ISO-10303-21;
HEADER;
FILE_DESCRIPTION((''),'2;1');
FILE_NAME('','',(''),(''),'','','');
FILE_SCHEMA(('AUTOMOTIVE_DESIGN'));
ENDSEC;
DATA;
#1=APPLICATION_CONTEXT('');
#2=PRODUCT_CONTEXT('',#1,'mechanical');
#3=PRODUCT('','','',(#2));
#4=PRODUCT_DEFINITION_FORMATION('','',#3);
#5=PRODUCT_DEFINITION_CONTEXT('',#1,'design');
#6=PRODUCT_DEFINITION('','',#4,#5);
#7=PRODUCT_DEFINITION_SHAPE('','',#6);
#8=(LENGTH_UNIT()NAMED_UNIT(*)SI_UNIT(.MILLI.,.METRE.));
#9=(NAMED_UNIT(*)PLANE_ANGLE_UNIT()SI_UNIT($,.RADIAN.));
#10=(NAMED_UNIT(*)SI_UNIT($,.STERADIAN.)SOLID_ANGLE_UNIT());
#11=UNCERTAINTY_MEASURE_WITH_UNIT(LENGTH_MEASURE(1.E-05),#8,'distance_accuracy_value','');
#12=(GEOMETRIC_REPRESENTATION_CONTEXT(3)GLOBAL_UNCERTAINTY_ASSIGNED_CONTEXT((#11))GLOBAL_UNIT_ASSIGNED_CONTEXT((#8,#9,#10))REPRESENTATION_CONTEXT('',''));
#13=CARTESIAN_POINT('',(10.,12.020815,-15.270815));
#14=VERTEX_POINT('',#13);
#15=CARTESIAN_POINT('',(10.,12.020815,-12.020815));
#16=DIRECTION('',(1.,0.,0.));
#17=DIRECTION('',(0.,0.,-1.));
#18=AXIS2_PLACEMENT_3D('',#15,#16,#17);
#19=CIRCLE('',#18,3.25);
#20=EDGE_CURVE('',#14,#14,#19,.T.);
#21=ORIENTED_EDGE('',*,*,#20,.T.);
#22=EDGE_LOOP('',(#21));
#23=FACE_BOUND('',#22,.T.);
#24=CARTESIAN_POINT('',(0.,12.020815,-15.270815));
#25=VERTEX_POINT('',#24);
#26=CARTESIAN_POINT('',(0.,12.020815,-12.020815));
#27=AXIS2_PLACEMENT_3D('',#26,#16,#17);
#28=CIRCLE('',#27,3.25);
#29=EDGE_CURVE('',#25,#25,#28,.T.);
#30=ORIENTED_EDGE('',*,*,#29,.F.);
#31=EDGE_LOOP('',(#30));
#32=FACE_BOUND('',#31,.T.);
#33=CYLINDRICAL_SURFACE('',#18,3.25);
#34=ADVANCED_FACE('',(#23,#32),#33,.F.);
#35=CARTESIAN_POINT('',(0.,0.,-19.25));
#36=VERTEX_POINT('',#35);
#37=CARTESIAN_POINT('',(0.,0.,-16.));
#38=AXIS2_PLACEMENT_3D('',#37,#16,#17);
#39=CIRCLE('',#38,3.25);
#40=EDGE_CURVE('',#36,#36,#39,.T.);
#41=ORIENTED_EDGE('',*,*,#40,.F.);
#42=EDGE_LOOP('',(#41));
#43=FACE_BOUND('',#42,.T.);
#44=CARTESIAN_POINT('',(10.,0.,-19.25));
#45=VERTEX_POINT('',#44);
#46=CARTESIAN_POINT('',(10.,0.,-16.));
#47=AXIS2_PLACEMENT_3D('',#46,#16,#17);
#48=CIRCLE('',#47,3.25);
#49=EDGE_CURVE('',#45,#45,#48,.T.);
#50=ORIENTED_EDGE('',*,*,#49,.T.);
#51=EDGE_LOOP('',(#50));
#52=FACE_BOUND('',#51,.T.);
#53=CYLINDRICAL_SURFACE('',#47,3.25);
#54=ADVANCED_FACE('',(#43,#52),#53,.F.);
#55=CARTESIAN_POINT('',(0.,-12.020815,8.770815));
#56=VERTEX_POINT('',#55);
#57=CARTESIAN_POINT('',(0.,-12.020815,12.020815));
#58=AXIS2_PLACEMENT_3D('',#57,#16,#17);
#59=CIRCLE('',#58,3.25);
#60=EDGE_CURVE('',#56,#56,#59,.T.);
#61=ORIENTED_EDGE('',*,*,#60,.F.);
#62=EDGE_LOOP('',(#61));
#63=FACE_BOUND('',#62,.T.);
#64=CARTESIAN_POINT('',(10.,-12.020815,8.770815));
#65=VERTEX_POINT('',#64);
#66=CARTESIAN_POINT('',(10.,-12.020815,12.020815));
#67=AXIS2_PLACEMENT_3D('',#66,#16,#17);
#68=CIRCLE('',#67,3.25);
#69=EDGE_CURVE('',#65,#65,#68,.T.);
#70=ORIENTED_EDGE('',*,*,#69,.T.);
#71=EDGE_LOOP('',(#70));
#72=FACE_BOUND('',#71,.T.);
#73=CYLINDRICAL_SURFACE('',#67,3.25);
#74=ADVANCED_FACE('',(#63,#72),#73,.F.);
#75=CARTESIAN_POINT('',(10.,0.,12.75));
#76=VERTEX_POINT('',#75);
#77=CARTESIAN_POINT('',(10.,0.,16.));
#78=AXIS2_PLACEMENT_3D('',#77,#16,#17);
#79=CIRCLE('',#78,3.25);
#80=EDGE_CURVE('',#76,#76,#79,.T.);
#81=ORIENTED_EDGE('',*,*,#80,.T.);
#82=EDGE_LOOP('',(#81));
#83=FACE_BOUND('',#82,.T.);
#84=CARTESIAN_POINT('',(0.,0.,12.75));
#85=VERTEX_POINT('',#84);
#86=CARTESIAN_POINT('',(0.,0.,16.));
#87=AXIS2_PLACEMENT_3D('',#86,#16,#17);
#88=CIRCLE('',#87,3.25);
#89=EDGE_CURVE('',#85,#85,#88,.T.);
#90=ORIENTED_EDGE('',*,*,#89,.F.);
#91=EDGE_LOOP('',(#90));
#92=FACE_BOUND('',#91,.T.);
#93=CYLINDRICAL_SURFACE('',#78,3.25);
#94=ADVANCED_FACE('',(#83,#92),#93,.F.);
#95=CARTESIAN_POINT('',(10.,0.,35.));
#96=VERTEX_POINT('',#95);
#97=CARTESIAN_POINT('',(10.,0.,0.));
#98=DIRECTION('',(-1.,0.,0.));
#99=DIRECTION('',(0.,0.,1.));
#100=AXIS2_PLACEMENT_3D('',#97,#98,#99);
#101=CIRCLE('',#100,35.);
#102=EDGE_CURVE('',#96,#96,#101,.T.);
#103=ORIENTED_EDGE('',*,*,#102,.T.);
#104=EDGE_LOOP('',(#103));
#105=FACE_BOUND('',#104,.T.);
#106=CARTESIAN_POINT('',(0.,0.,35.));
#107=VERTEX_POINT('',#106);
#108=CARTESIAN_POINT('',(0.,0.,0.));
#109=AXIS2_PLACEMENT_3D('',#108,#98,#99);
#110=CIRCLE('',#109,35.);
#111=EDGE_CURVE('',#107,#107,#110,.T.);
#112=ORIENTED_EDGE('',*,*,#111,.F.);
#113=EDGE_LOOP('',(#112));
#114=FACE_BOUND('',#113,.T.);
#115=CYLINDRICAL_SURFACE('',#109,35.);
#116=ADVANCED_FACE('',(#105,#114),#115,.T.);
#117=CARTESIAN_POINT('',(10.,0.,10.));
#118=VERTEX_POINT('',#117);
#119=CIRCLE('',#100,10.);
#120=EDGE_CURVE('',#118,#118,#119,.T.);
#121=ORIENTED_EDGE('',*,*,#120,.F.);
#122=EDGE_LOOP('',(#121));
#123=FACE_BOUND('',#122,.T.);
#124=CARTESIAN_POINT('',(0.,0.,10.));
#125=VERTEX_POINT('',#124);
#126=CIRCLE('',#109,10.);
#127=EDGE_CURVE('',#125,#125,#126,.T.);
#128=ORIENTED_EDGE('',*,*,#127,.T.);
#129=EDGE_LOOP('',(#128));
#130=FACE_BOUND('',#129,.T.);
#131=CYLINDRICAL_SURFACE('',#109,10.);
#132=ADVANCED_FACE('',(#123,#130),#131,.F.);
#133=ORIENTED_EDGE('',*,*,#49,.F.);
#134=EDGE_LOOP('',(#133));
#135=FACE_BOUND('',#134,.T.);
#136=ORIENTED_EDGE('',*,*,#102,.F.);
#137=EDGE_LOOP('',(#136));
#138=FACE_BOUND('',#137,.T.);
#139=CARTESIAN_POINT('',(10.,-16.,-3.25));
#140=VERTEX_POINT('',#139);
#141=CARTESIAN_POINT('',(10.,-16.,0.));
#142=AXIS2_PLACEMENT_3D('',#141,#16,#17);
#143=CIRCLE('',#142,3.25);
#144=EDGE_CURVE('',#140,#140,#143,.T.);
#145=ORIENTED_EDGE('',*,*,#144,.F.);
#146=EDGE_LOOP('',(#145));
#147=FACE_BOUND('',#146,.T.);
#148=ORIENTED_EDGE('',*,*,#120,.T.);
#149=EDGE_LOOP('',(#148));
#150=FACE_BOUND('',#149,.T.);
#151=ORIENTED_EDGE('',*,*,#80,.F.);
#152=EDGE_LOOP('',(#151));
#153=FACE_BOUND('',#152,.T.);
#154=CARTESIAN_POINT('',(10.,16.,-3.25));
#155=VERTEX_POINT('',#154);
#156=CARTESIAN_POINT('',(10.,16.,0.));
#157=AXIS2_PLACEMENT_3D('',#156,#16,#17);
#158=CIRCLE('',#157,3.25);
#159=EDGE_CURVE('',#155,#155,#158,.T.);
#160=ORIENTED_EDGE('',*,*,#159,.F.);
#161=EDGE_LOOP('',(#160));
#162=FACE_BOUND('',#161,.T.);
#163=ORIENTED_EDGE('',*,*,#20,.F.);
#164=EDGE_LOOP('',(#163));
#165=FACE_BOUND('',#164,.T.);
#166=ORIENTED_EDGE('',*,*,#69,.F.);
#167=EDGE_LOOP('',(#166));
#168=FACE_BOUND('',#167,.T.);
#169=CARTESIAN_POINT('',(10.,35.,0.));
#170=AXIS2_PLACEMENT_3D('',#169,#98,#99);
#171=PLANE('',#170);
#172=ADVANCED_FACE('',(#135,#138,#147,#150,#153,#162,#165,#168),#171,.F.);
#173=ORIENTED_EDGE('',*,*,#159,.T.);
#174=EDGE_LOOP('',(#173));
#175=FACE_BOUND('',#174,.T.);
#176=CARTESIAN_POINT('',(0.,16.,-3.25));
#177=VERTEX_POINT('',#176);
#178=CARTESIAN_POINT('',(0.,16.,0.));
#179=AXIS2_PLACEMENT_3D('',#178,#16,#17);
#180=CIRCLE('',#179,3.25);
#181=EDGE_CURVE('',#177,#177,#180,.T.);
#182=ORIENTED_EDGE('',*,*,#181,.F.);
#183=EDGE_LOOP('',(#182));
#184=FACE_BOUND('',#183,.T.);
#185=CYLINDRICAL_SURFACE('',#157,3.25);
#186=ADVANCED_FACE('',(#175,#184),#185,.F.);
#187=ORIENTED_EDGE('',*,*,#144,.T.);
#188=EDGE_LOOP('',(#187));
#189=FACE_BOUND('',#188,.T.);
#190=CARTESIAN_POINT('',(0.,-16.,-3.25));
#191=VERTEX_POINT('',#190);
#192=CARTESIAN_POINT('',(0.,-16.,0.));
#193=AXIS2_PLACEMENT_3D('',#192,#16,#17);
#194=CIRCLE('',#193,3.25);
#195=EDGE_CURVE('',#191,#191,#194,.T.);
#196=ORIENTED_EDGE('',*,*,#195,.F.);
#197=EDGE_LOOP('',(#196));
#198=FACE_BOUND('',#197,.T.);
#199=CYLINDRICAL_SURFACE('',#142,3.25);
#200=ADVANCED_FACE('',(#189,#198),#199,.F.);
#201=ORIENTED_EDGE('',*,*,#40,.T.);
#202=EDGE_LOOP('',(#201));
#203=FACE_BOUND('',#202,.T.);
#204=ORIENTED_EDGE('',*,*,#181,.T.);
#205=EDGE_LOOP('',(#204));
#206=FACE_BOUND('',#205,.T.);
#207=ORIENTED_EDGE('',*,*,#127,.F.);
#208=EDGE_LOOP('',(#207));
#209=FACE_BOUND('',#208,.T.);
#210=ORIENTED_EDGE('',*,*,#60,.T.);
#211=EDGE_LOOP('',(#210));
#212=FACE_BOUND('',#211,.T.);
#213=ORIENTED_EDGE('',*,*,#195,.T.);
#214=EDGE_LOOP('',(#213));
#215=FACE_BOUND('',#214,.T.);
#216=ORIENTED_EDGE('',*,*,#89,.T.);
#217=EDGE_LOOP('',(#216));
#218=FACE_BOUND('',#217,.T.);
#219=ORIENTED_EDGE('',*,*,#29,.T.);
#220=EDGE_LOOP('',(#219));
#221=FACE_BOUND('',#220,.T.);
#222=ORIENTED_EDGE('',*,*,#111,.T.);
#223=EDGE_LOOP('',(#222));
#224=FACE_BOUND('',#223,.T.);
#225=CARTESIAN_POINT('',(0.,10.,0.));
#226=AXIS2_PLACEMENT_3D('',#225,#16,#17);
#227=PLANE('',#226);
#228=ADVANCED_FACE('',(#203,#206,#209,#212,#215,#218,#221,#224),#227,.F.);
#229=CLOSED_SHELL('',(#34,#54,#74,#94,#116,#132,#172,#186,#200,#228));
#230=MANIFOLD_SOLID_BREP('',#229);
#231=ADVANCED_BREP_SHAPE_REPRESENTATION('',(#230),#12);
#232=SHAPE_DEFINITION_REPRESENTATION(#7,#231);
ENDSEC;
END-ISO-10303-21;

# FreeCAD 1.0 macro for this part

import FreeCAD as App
import Part
import Sketcher
from FreeCAD import Vector


def add_polygon(sketch, points):
    """Adds a closed chain of lines whose ends are joined by coincident constraints."""
    first, n = sketch.GeometryCount, len(points)
    for a, b in zip(points, points[1:] + points[:1]):
        sketch.addGeometry(Part.LineSegment(App.Vector(*a, 0), App.Vector(*b, 0)), False)
    for i in range(n):
        sketch.addConstraint(Sketcher.Constraint("Coincident", first + i, 2, first + (i + 1) % n, 1))

doc = App.newDocument("Part")
body = doc.addObject("PartDesign::Body", "Body")

# Sketch on XY plane
sketch1 = body.newObject("Sketcher::SketchObject", "Sketch")
sketch1.AttachmentSupport = (doc.getObject("XY_Plane"), [""])
sketch1.MapMode = "FlatFace"
add_polygon(sketch1, [(0, 35), (0, 10), (10, 10), (10, 35)])  # lines 0-3
sketch1.addConstraint([
    Sketcher.Constraint("Vertical", 0),
    Sketcher.Constraint("Horizontal", 1),
    Sketcher.Constraint("Vertical", 2),
    Sketcher.Constraint("Horizontal", 3),
    Sketcher.Constraint("PointOnObject", 0, 2, -2),
    Sketcher.Constraint("DistanceX", 1, 1, 1, 2, 10.0),
    Sketcher.Constraint("DistanceY", 0, 2, 0, 1, 25.0),
    Sketcher.Constraint("DistanceY", -1, 1, 0, 2, 10.0),
])
revolution = body.newObject("PartDesign::Revolution", "Revolution")
revolution.Profile = sketch1
revolution.ReferenceAxis = (sketch1, ["H_Axis"])
revolution.Angle = 360

# Sketch on YZ plane
sketch2 = body.newObject("Sketcher::SketchObject", "Sketch001")
sketch2.AttachmentSupport = (doc.getObject("YZ_Plane"), [""])
sketch2.MapMode = "FlatFace"
sketch2.AttachmentOffset = App.Placement(Vector(0, 0, 10), App.Rotation())
sketch2.addGeometry([
    Part.Circle(Vector(0, 16, 0), Vector(0, 0, 1), 3.2),
    Part.Circle(Vector(16, 0, 0), Vector(0, 0, 1), 3.2),
    Part.Circle(Vector(0, -16, 0), Vector(0, 0, 1), 3.2),
    Part.Circle(Vector(-16, 0, 0), Vector(0, 0, 1), 3.2),
], False)
sketch2.addConstraint([
    Sketcher.Constraint("Equal", 0, 1),
    Sketcher.Constraint("Equal", 1, 2),
    Sketcher.Constraint("Equal", 2, 3),
    Sketcher.Constraint("Symmetric", 0, 3, 2, 3, -1, 1),
    Sketcher.Constraint("Symmetric", 1, 3, 3, 3, -1, 1),
    Sketcher.Constraint("PointOnObject", 0, 3, -2),
    Sketcher.Constraint("PointOnObject", 1, 3, -1),
    Sketcher.Constraint("Diameter", 0, 6.5),
    Sketcher.Constraint("DistanceY", -1, 1, 0, 3, 16.0),
    Sketcher.Constraint("DistanceX", -1, 1, 1, 3, 16.0),
])
doc.recompute()
hole = body.newObject("PartDesign::Hole", "Hole")
hole.Profile = sketch2
hole.ThreadType = "None"
hole.Diameter = 6.5
hole.DepthType = "ThroughAll"

# Sketch on YZ plane
sketch3 = body.newObject("Sketcher::SketchObject", "Sketch002")
sketch3.AttachmentSupport = (doc.getObject("YZ_Plane"), [""])
sketch3.MapMode = "FlatFace"
sketch3.AttachmentOffset = App.Placement(Vector(0, 0, 10), App.Rotation())
sketch3.addGeometry([
    Part.Circle(Vector(-12, 12, 0), Vector(0, 0, 1), 3.2),
    Part.Circle(Vector(12, -12, 0), Vector(0, 0, 1), 3.2),
], False)
sketch3.addConstraint([
    Sketcher.Constraint("Equal", 0, 1),
    Sketcher.Constraint("Symmetric", 0, 3, 1, 3, -1, 1),
    Sketcher.Constraint("Diameter", 0, 6.5),
    Sketcher.Constraint("DistanceX", 0, 3, 1, 3, 24.041631),
    Sketcher.Constraint("DistanceY", 1, 3, 0, 3, 24.041631),
])
doc.recompute()
hole2 = body.newObject("PartDesign::Hole", "Hole001")
hole2.Profile = sketch3
hole2.ThreadType = "None"
hole2.Diameter = 6.5
hole2.DepthType = "ThroughAll"

doc.recompute()
